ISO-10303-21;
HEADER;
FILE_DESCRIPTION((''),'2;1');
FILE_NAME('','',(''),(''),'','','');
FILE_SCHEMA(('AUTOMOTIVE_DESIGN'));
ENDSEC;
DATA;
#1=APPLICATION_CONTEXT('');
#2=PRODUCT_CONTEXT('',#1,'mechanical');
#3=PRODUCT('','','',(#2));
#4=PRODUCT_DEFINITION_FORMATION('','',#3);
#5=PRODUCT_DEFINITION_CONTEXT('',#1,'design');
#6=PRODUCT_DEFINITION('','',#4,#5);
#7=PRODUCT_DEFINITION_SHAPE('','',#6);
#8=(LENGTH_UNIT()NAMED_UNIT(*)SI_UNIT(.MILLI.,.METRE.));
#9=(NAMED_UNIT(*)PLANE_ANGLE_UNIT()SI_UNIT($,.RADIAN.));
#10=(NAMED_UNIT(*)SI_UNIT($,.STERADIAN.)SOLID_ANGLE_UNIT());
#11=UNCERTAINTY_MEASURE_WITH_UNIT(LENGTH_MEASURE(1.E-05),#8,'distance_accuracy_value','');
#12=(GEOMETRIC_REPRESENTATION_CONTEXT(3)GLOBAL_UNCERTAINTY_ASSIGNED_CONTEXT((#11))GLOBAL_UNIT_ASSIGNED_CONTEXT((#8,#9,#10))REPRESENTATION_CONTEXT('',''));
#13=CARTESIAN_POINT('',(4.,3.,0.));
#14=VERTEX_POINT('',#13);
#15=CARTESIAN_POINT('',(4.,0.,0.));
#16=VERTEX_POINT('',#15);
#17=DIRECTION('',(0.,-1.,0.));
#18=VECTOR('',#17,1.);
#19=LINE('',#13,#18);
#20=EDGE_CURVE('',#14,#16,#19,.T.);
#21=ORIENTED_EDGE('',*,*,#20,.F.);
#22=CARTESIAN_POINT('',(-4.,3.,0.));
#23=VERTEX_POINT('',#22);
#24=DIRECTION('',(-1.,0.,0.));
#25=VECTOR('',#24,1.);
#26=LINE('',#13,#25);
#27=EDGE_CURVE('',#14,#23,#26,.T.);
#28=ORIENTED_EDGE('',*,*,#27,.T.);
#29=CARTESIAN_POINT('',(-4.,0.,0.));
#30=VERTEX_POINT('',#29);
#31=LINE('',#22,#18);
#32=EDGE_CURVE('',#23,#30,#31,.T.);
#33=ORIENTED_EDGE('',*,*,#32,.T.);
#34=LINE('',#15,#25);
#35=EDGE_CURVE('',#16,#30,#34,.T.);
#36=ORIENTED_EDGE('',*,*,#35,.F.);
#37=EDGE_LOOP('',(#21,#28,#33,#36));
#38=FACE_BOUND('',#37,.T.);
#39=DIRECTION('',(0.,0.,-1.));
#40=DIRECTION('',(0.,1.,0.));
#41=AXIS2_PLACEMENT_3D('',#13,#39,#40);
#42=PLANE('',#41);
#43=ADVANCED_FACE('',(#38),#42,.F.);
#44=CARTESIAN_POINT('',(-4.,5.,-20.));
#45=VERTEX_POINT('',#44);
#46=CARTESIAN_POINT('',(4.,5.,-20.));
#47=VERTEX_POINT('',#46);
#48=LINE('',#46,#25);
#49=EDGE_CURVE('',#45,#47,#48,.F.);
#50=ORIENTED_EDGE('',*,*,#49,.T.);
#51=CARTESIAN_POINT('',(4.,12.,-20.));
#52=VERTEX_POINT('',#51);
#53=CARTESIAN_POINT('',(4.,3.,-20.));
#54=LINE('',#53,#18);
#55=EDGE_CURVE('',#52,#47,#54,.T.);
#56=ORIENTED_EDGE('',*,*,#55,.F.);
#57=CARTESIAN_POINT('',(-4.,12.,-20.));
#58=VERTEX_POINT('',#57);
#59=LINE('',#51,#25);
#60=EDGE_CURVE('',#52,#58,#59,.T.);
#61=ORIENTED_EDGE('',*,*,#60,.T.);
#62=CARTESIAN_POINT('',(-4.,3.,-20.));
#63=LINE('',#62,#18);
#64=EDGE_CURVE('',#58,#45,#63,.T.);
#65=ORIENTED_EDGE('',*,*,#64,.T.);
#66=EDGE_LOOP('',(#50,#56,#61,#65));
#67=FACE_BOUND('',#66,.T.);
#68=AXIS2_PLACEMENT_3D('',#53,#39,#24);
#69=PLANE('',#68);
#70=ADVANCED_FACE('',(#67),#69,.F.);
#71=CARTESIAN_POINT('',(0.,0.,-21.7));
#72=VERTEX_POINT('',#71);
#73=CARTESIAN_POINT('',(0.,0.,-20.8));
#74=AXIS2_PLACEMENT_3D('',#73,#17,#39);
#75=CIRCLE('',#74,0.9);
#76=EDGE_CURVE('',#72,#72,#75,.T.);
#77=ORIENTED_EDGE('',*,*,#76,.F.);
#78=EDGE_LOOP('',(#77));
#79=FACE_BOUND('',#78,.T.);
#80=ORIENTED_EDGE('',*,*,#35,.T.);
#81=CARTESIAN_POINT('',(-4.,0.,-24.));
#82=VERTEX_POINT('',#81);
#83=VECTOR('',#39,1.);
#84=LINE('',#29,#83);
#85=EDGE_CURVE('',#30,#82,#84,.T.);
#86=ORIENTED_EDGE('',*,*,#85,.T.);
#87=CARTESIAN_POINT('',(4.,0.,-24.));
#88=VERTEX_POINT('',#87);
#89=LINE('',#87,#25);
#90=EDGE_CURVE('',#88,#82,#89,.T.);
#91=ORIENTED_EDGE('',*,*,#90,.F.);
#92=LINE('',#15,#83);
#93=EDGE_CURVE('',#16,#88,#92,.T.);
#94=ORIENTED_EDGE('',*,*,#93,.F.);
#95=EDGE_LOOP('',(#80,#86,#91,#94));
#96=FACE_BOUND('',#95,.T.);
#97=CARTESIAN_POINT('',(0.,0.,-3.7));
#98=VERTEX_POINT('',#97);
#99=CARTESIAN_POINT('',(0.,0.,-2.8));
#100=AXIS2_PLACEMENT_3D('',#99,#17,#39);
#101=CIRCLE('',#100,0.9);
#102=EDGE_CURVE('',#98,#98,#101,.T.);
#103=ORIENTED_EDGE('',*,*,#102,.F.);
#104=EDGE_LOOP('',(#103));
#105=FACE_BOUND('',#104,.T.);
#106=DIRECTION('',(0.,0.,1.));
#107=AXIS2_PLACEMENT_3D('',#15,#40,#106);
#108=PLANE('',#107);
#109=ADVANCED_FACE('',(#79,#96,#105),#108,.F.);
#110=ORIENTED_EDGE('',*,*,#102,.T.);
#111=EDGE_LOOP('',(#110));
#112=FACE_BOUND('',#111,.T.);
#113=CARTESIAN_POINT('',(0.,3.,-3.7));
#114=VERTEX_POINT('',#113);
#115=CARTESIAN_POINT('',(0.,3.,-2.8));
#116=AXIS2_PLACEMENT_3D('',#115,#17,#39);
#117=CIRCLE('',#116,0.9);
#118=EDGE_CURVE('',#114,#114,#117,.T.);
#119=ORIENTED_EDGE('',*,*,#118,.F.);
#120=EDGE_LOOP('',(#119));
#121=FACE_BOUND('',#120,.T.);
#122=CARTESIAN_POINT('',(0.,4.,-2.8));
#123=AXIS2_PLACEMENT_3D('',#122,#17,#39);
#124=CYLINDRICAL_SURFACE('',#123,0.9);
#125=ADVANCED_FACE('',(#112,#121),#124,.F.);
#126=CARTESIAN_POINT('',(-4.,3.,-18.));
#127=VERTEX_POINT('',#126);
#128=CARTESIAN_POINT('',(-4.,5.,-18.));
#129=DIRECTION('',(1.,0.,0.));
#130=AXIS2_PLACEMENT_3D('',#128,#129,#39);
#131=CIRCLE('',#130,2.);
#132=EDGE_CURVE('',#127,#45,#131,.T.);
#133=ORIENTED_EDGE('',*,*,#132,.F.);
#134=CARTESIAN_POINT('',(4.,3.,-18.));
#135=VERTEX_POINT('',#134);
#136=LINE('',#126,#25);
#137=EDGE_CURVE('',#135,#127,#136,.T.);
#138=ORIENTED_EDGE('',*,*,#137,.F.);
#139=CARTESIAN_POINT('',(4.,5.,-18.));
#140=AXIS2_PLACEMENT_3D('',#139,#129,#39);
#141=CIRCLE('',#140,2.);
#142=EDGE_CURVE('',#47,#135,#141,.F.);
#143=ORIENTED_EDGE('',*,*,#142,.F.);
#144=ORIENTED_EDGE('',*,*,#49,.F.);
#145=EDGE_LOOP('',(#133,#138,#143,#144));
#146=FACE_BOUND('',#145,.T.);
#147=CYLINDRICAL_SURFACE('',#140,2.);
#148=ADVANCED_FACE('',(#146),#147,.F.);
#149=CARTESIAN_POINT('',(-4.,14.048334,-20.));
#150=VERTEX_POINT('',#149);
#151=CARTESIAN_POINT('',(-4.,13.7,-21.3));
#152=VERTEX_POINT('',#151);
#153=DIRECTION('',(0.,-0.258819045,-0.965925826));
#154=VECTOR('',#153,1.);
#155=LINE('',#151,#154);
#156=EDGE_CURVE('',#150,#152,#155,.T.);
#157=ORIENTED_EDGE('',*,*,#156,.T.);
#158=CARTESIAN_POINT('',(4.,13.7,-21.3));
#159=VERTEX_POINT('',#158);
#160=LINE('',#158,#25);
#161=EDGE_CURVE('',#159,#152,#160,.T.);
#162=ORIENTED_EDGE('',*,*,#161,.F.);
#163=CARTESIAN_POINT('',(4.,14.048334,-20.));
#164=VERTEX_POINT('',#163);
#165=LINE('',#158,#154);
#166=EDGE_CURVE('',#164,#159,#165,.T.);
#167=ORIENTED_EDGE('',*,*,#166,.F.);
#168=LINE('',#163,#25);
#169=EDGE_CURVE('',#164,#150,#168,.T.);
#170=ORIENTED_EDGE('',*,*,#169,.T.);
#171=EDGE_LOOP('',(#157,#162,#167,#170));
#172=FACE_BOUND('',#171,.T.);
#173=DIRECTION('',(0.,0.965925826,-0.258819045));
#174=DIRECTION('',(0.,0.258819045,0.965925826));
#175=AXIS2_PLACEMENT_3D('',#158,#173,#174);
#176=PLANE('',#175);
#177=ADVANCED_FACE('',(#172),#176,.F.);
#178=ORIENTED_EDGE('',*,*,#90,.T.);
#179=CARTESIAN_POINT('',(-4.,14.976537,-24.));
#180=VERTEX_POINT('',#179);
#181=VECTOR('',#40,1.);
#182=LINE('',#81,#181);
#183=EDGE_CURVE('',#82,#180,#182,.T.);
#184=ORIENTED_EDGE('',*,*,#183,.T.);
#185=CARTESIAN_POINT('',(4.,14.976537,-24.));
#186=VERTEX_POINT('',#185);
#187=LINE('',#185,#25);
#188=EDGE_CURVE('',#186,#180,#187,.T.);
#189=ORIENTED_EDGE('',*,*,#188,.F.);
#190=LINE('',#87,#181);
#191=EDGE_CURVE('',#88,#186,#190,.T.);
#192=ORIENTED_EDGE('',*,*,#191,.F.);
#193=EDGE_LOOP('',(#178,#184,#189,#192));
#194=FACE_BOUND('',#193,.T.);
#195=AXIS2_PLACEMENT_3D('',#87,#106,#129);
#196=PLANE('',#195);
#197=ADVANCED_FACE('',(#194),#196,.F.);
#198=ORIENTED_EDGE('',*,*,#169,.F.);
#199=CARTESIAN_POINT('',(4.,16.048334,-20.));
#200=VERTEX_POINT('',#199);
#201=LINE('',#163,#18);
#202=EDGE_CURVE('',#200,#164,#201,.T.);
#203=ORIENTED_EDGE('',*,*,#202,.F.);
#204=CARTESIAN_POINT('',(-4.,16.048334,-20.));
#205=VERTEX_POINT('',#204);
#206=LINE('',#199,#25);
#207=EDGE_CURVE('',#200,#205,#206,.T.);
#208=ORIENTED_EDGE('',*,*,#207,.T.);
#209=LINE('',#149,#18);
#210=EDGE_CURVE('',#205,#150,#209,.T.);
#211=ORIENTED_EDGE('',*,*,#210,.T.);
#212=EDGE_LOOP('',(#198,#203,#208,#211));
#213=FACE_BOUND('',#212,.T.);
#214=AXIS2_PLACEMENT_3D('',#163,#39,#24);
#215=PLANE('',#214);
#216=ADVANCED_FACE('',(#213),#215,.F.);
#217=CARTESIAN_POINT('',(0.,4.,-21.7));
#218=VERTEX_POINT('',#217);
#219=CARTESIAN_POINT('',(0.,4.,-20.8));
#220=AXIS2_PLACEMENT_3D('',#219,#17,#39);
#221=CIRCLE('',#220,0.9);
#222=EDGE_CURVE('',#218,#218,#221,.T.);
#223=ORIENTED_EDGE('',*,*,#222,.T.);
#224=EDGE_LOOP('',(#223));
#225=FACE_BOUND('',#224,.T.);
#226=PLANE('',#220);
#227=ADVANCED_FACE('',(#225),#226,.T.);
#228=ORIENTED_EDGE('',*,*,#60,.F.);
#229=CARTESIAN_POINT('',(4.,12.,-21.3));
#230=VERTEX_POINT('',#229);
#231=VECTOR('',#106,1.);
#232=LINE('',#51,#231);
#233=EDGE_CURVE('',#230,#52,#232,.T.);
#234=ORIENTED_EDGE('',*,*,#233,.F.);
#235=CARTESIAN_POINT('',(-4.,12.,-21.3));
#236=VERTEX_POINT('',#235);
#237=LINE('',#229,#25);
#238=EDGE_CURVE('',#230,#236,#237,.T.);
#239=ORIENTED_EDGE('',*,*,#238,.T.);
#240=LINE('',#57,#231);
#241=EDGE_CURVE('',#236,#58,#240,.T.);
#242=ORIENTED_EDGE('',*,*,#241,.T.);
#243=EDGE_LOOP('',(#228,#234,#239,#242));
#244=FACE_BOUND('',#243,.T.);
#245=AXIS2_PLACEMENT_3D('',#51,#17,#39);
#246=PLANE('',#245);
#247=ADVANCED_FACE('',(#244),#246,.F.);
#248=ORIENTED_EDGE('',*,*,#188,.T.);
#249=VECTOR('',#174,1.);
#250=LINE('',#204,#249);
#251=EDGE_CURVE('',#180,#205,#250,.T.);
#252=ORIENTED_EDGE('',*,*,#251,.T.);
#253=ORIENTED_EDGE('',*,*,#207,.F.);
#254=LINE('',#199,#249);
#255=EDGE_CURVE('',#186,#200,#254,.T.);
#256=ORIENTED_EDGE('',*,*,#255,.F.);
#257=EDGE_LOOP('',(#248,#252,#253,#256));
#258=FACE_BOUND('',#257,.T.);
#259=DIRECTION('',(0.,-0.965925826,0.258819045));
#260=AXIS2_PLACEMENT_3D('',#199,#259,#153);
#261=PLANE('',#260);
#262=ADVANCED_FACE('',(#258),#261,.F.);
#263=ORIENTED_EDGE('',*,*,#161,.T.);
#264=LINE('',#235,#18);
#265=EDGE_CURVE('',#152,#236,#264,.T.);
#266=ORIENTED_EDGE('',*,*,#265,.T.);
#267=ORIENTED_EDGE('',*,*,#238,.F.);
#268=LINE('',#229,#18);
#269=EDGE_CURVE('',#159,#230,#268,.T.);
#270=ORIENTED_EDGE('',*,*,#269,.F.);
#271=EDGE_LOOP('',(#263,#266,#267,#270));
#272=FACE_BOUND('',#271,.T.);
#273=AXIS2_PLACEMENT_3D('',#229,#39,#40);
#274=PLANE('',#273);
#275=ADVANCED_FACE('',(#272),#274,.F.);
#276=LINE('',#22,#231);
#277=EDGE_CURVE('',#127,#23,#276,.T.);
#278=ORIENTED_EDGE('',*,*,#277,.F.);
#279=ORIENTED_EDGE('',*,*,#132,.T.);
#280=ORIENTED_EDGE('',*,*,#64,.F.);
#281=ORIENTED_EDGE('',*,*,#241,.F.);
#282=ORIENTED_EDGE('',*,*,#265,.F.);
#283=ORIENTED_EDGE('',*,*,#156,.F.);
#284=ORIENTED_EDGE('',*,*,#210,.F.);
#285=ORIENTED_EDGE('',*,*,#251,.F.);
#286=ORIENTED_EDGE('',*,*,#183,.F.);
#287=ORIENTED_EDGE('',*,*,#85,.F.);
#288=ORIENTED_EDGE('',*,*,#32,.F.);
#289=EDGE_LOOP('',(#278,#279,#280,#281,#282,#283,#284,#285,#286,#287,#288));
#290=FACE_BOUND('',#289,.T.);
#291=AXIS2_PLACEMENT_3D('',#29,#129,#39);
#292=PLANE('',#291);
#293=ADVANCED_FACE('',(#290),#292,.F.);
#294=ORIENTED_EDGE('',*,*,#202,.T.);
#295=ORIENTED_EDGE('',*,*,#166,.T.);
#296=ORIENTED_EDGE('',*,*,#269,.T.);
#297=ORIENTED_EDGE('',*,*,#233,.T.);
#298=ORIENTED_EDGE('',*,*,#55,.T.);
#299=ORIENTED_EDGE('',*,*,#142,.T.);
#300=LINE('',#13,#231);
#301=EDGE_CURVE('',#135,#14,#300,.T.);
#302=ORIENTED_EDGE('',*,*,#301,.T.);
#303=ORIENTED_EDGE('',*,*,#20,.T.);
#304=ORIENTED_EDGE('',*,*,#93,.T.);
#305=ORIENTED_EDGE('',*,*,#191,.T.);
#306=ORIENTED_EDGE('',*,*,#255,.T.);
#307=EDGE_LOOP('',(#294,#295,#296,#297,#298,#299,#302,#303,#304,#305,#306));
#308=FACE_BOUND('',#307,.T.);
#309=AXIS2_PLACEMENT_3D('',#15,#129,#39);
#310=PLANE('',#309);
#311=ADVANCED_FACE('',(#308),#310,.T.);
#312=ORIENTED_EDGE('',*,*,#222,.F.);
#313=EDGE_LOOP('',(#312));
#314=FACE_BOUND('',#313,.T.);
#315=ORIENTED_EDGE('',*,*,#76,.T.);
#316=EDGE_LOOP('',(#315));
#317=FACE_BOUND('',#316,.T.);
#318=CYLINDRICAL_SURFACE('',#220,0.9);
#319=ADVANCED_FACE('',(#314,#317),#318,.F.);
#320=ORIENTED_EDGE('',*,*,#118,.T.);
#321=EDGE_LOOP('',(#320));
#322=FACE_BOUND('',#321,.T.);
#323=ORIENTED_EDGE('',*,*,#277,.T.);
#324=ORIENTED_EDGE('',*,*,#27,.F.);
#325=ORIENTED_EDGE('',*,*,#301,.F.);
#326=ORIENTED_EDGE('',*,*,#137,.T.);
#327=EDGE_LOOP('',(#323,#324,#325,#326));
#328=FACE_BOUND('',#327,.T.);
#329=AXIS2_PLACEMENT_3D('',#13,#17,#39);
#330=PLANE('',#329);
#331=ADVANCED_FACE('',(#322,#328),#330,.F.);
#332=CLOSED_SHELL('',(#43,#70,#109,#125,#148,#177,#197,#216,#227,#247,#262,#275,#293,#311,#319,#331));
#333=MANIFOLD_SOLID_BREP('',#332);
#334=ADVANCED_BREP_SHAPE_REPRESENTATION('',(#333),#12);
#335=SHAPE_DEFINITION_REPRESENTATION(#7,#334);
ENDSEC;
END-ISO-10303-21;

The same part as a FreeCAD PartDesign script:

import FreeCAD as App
import Part
import Sketcher

V = App.Vector
Q = App.Units.Quantity


def edges_at(feature, points):
    """Names of the edges that pass closest to the given points."""
    edges = feature.Shape.Edges
    near = lambda p: min(range(len(edges)), key=lambda i: edges[i].distToShape(Part.Vertex(*p))[0])
    return sorted({f"Edge{near(p) + 1}" for p in points})

doc = App.newDocument("Part")
body = doc.addObject("PartDesign::Body", "Body")

sketch1 = body.newObject("Sketcher::SketchObject", "Sketch")
sketch1.AttachmentSupport = (doc.getObject("YZ_Plane"), [""])
sketch1.MapMode = "FlatFace"
sketch1.addGeometry([
    Part.LineSegment(V(3, -20, 0), V(3, 0, 0)),
    Part.LineSegment(V(3, 0, 0), V(0, 0, 0)),
    Part.LineSegment(V(0, 0, 0), V(0, -24, 0)),
    Part.LineSegment(V(0, -24, 0), V(15, -24, 0)),
    Part.LineSegment(V(15, -24, 0), V(16, -20, 0)),
    Part.LineSegment(V(16, -20, 0), V(14, -20, 0)),
    Part.LineSegment(V(14, -20, 0), V(13.7, -21.3, 0)),
    Part.LineSegment(V(13.7, -21.3, 0), V(12, -21.3, 0)),
    Part.LineSegment(V(12, -21.3, 0), V(12, -20, 0)),
    Part.LineSegment(V(12, -20, 0), V(3, -20, 0)),
], False)
sketch1.addConstraint([
    Sketcher.Constraint("Coincident", 0, 2, 1, 1),
    Sketcher.Constraint("Coincident", 1, 2, 2, 1),
    Sketcher.Constraint("Coincident", 2, 2, 3, 1),
    Sketcher.Constraint("Coincident", 3, 2, 4, 1),
    Sketcher.Constraint("Coincident", 4, 2, 5, 1),
    Sketcher.Constraint("Coincident", 5, 2, 6, 1),
    Sketcher.Constraint("Coincident", 6, 2, 7, 1),
    Sketcher.Constraint("Coincident", 7, 2, 8, 1),
    Sketcher.Constraint("Coincident", 8, 2, 9, 1),
    Sketcher.Constraint("Coincident", 9, 2, 0, 1),
    Sketcher.Constraint("Vertical", 0),
    Sketcher.Constraint("Horizontal", 1),
    Sketcher.Constraint("Vertical", 2),
    Sketcher.Constraint("Horizontal", 3),
    Sketcher.Constraint("Horizontal", 5),
    Sketcher.Constraint("Horizontal", 7),
    Sketcher.Constraint("Vertical", 8),
    Sketcher.Constraint("Horizontal", 9),
    Sketcher.Constraint("Coincident", 1, 2, -1, 1),
    Sketcher.Constraint("Parallel", 4, 6),
    Sketcher.Constraint("Horizontal", 5, 2, 8, 2),
    Sketcher.Constraint("DistanceX", 1, 2, 1, 1, Q("3 mm")),
    Sketcher.Constraint("DistanceX", 5, 2, 5, 1, Q("2 mm")),
    Sketcher.Constraint("DistanceX", 9, 2, 9, 1, Q("9 mm")),
    Sketcher.Constraint("DistanceY", 0, 1, 0, 2, Q("20 mm")),
    Sketcher.Constraint("DistanceY", 2, 2, 2, 1, Q("24 mm")),
    Sketcher.Constraint("Angle", 4, Q("75 deg")),
    Sketcher.Constraint("DistanceX", 7, 2, 7, 1, Q("1.7 mm")),
    Sketcher.Constraint("DistanceY", 8, 1, 8, 2, Q("1.3 mm")),
])
pad1 = body.newObject("PartDesign::Pad", "Pad")
pad1.Profile = sketch1
pad1.Length = 8
pad1.Midplane = True
doc.recompute()

fillet = body.newObject("PartDesign::Fillet", "Fillet")
fillet.Base = (pad1, edges_at(pad1, [(0, 3, -20)]))
fillet.Radius = 2

sketch2 = body.newObject("Sketcher::SketchObject", "Sketch001")
sketch2.AttachmentSupport = (doc.getObject("XZ_Plane"), [""])
sketch2.MapMode = "FlatFace"
sketch2.addGeometry([
    Part.Circle(V(0, -20.8, 0), V(0, 0, 1), 0.9),
    Part.Circle(V(0, -2.8, 0), V(0, 0, 1), 0.9),
], False)
sketch2.addConstraint([
    Sketcher.Constraint("Equal", 0, 1),
    Sketcher.Constraint("PointOnObject", 0, 3, -2),
    Sketcher.Constraint("PointOnObject", 1, 3, -2),
    Sketcher.Constraint("Diameter", 0, Q("1.8 mm")),
    Sketcher.Constraint("DistanceY", 0, 3, 1, 3, Q("18 mm")),
    Sketcher.Constraint("DistanceY", 0, 3, -1, 1, Q("20.8 mm")),
])
pocket1 = body.newObject("PartDesign::Pocket", "Pocket")
pocket1.Profile = sketch2
pocket1.Length = 4

doc.recompute()
